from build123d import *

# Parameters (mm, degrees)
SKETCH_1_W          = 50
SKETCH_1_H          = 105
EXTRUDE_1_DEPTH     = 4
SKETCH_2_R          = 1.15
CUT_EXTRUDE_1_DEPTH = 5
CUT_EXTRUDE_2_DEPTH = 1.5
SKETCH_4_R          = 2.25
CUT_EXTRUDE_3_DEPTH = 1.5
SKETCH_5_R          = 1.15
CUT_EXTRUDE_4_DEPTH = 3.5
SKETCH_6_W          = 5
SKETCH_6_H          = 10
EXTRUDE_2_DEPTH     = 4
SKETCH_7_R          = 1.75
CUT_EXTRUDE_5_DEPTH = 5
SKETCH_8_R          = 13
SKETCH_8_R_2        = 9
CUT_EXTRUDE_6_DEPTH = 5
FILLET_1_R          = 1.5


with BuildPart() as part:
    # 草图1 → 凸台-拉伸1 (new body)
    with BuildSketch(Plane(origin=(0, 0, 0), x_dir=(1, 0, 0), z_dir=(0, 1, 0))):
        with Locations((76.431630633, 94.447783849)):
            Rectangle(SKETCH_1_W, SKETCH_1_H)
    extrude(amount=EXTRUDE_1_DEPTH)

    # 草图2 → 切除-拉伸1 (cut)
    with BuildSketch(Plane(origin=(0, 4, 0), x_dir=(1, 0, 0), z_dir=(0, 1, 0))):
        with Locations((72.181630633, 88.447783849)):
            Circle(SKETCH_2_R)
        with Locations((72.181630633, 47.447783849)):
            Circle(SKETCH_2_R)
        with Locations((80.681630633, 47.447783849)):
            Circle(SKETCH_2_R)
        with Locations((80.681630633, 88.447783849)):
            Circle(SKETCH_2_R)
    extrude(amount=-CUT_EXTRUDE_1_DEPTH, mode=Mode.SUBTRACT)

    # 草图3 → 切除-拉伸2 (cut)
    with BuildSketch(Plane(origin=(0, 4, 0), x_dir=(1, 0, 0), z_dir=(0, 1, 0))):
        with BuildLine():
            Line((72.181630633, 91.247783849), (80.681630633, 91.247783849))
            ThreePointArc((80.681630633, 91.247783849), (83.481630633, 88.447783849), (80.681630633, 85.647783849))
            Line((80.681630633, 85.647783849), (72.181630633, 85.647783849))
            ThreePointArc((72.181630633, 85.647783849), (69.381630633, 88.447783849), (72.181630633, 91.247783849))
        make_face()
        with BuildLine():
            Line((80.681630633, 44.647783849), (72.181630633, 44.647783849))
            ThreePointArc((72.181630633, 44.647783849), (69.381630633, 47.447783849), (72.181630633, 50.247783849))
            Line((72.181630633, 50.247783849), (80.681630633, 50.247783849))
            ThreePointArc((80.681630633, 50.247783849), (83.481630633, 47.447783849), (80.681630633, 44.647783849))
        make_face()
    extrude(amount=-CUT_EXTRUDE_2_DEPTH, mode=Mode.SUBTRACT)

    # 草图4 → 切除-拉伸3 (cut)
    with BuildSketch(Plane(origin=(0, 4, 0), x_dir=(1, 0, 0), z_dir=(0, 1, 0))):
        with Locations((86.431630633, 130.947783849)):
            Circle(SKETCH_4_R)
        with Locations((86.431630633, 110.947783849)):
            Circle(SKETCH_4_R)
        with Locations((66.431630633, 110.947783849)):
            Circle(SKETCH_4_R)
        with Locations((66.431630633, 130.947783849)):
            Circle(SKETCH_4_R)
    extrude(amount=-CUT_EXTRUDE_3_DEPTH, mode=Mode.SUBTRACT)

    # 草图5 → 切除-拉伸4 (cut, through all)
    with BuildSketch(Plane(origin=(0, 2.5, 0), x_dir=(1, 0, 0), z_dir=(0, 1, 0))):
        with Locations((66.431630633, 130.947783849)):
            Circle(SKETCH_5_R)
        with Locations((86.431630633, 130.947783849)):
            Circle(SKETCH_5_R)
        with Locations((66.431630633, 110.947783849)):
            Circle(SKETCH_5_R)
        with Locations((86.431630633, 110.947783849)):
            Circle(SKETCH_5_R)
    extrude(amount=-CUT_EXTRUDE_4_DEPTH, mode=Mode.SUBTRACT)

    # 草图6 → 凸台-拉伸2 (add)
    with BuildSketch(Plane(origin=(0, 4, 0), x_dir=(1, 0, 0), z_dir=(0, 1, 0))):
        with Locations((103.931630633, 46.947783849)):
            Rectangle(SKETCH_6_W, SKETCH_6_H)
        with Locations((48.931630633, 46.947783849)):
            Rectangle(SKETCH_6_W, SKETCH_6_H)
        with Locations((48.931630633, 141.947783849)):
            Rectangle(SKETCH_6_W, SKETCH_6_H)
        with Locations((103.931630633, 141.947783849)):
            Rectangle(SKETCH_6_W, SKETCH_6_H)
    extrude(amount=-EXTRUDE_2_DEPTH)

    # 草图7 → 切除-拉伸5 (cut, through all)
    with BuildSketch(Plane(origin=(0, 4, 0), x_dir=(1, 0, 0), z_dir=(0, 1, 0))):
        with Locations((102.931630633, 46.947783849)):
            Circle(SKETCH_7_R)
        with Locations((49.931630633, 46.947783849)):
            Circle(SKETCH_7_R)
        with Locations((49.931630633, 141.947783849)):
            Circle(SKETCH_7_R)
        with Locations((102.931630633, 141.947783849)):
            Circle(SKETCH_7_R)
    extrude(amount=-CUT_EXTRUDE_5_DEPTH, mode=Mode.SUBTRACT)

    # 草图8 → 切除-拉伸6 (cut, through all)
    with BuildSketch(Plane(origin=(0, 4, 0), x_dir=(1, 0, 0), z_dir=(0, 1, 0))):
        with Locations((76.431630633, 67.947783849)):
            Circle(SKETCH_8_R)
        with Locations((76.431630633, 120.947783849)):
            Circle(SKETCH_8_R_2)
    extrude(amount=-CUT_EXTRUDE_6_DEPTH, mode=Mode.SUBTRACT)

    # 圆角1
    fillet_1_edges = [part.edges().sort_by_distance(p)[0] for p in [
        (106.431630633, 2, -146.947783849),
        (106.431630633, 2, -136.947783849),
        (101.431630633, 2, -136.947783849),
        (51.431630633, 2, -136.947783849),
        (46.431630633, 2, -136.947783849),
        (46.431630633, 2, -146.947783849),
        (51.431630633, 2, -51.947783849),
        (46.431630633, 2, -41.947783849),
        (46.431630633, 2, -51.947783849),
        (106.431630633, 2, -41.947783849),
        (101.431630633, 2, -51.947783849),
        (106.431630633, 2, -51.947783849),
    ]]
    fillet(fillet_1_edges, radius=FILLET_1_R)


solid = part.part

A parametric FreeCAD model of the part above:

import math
import FreeCAD as App
import Part
import Sketcher
from FreeCAD import Vector
Q = App.Units.Quantity


def edges_at(feature, points):
    """Names of the edges that pass closest to the given points."""
    edges = feature.Shape.Edges
    near = lambda p: min(range(len(edges)), key=lambda i: edges[i].distToShape(Part.Vertex(*p))[0])
    return sorted({f"Edge{near(p) + 1}" for p in points})

doc = App.newDocument("Part")
body = doc.addObject("PartDesign::Body", "Body")

sketch1 = body.newObject("Sketcher::SketchObject", "Sketch")
sketch1.AttachmentSupport = (doc.getObject("XZ_Plane"), [""])
sketch1.MapMode = "FlatFace"
sketch1.addGeometry([
    Part.LineSegment(Vector(51, -147, 0), Vector(51, -42, 0)),
    Part.LineSegment(Vector(51, -42, 0), Vector(101, -42, 0)),
    Part.LineSegment(Vector(101, -42, 0), Vector(101, -147, 0)),
    Part.LineSegment(Vector(101, -147, 0), Vector(51, -147, 0)),
], False)
sketch1.addConstraint([
    Sketcher.Constraint("Coincident", 0, 2, 1, 1),
    Sketcher.Constraint("Coincident", 1, 2, 2, 1),
    Sketcher.Constraint("Coincident", 2, 2, 3, 1),
    Sketcher.Constraint("Coincident", 3, 2, 0, 1),
    Sketcher.Constraint("Vertical", 0),
    Sketcher.Constraint("Horizontal", 1),
    Sketcher.Constraint("Vertical", 2),
    Sketcher.Constraint("Horizontal", 3),
    Sketcher.Constraint("DistanceX", 1, 1, 1, 2, Q("50 mm")),
    Sketcher.Constraint("DistanceY", 0, 1, 0, 2, Q("105 mm")),
    Sketcher.Constraint("DistanceX", -1, 1, 0, 2, Q("51.431631 mm")),
    Sketcher.Constraint("DistanceY", 0, 2, -1, 1, Q("41.947784 mm")),
])
pad1 = body.newObject("PartDesign::Pad", "Pad")
pad1.Profile = sketch1
pad1.Length = 4
pad1.Reversed = True

sketch2 = body.newObject("Sketcher::SketchObject", "Sketch001")
sketch2.AttachmentSupport = (doc.getObject("XZ_Plane"), [""])
sketch2.MapMode = "FlatFace"
sketch2.AttachmentOffset = App.Placement(Vector(0, 0, -4), App.Rotation())
sketch2.addGeometry([
    Part.Circle(Vector(72.2, -88.4, 0), Vector(0, 0, 1), 1.1),
    Part.Circle(Vector(72.2, -47.4, 0), Vector(0, 0, 1), 1.1),
    Part.Circle(Vector(80.7, -47.4, 0), Vector(0, 0, 1), 1.1),
    Part.Circle(Vector(80.7, -88.4, 0), Vector(0, 0, 1), 1.1),
], False)
sketch2.addConstraint([
    Sketcher.Constraint("Equal", 0, 1),
    Sketcher.Constraint("Equal", 1, 2),
    Sketcher.Constraint("Equal", 2, 3),
    Sketcher.Constraint("Horizontal", 1, 3, 2, 3),
    Sketcher.Constraint("Horizontal", 0, 3, 3, 3),
    Sketcher.Constraint("Vertical", 0, 3, 1, 3),
    Sketcher.Constraint("Vertical", 2, 3, 3, 3),
    Sketcher.Constraint("Diameter", 0, Q("2.3 mm")),
    Sketcher.Constraint("DistanceY", 0, 3, 1, 3, Q("41 mm")),
    Sketcher.Constraint("DistanceX", 1, 3, 2, 3, Q("8.5 mm")),
    Sketcher.Constraint("DistanceX", -1, 1, 0, 3, Q("72.181631 mm")),
    Sketcher.Constraint("DistanceY", 0, 3, -1, 1, Q("88.447784 mm")),
])
pocket1 = body.newObject("PartDesign::Pocket", "Pocket")
pocket1.Profile = sketch2
pocket1.Length = 5
pocket1.Reversed = True

sketch3 = body.newObject("Sketcher::SketchObject", "Sketch002")
sketch3.AttachmentSupport = (doc.getObject("XZ_Plane"), [""])
sketch3.MapMode = "FlatFace"
sketch3.AttachmentOffset = App.Placement(Vector(0, 0, -4), App.Rotation())
sketch3.addGeometry([
    Part.LineSegment(Vector(80.7, -91.2, 0), Vector(72.2, -91.2, 0)),
    Part.ArcOfCircle(Part.Circle(Vector(72.2, -88.4, 0), Vector(0, 0, 1), 2.8), math.radians(90), math.radians(270)),
    Part.LineSegment(Vector(72.2, -85.6, 0), Vector(80.7, -85.6, 0)),
    Part.ArcOfCircle(Part.Circle(Vector(80.7, -88.4, 0), Vector(0, 0, 1), 2.8), math.radians(-90), math.radians(90)),
    Part.LineSegment(Vector(72.2, -44.6, 0), Vector(80.7, -44.6, 0)),
    Part.ArcOfCircle(Part.Circle(Vector(80.7, -47.4, 0), Vector(0, 0, 1), 2.8), math.radians(-90), math.radians(90)),
    Part.LineSegment(Vector(80.7, -50.2, 0), Vector(72.2, -50.2, 0)),
    Part.ArcOfCircle(Part.Circle(Vector(72.2, -47.4, 0), Vector(0, 0, 1), 2.8), math.radians(90), math.radians(270)),
], False)
sketch3.addConstraint([
    Sketcher.Constraint("Tangent", 0, 2, 1, 2),
    Sketcher.Constraint("Tangent", 1, 1, 2, 1),
    Sketcher.Constraint("Tangent", 2, 2, 3, 2),
    Sketcher.Constraint("Tangent", 3, 1, 0, 1),
    Sketcher.Constraint("Tangent", 4, 2, 5, 2),
    Sketcher.Constraint("Tangent", 5, 1, 6, 1),
    Sketcher.Constraint("Tangent", 6, 2, 7, 2),
    Sketcher.Constraint("Tangent", 7, 1, 4, 1),
    Sketcher.Constraint("Horizontal", 0),
    Sketcher.Constraint("Horizontal", 2),
    Sketcher.Constraint("Horizontal", 4),
    Sketcher.Constraint("Horizontal", 6),
    Sketcher.Constraint("Equal", 3, 5),
    Sketcher.Constraint("Vertical", 3, 3, 5, 3),
    Sketcher.Constraint("Vertical", 1, 3, 7, 3),
    Sketcher.Constraint("Radius", 1, Q("2.8 mm")),
    Sketcher.Constraint("DistanceX", 0, 2, 0, 1, Q("8.5 mm")),
    Sketcher.Constraint("DistanceY", 3, 3, 5, 3, Q("41 mm")),
    Sketcher.Constraint("DistanceX", -1, 1, 1, 3, Q("72.181631 mm")),
    Sketcher.Constraint("DistanceY", 1, 3, -1, 1, Q("88.447784 mm")),
])
pocket2 = body.newObject("PartDesign::Pocket", "Pocket001")
pocket2.Profile = sketch3
pocket2.Length = 1.5
pocket2.Reversed = True

sketch4 = body.newObject("Sketcher::SketchObject", "Sketch003")
sketch4.AttachmentSupport = (doc.getObject("XZ_Plane"), [""])
sketch4.MapMode = "FlatFace"
sketch4.AttachmentOffset = App.Placement(Vector(0, 0, -4), App.Rotation())
sketch4.addGeometry([
    Part.Circle(Vector(86.4, -130.9, 0), Vector(0, 0, 1), 2.2),
    Part.Circle(Vector(86.4, -110.9, 0), Vector(0, 0, 1), 2.2),
    Part.Circle(Vector(66.4, -110.9, 0), Vector(0, 0, 1), 2.2),
    Part.Circle(Vector(66.4, -130.9, 0), Vector(0, 0, 1), 2.2),
], False)
sketch4.addConstraint([
    Sketcher.Constraint("Equal", 0, 1),
    Sketcher.Constraint("Equal", 1, 2),
    Sketcher.Constraint("Equal", 2, 3),
    Sketcher.Constraint("Horizontal", 1, 3, 2, 3),
    Sketcher.Constraint("Horizontal", 0, 3, 3, 3),
    Sketcher.Constraint("Vertical", 0, 3, 1, 3),
    Sketcher.Constraint("Vertical", 2, 3, 3, 3),
    Sketcher.Constraint("Diameter", 0, Q("4.5 mm")),
    Sketcher.Constraint("DistanceY", 0, 3, 1, 3, Q("20 mm")),
    Sketcher.Constraint("DistanceX", 2, 3, 1, 3, Q("20 mm")),
    Sketcher.Constraint("DistanceX", -1, 1, 0, 3, Q("86.431631 mm")),
    Sketcher.Constraint("DistanceY", 0, 3, -1, 1, Q("130.947784 mm")),
])
pocket3 = body.newObject("PartDesign::Pocket", "Pocket002")
pocket3.Profile = sketch4
pocket3.Length = 1.5
pocket3.Reversed = True

sketch5 = body.newObject("Sketcher::SketchObject", "Sketch004")
sketch5.AttachmentSupport = (doc.getObject("XZ_Plane"), [""])
sketch5.MapMode = "FlatFace"
sketch5.AttachmentOffset = App.Placement(Vector(0, 0, -2.5), App.Rotation())
sketch5.addGeometry([
    Part.Circle(Vector(66.4, -130.9, 0), Vector(0, 0, 1), 1.1),
    Part.Circle(Vector(86.4, -130.9, 0), Vector(0, 0, 1), 1.1),
    Part.Circle(Vector(66.4, -110.9, 0), Vector(0, 0, 1), 1.1),
    Part.Circle(Vector(86.4, -110.9, 0), Vector(0, 0, 1), 1.1),
], False)
sketch5.addConstraint([
    Sketcher.Constraint("Equal", 0, 1),
    Sketcher.Constraint("Equal", 1, 2),
    Sketcher.Constraint("Equal", 2, 3),
    Sketcher.Constraint("Horizontal", 0, 3, 1, 3),
    Sketcher.Constraint("Horizontal", 2, 3, 3, 3),
    Sketcher.Constraint("Vertical", 0, 3, 2, 3),
    Sketcher.Constraint("Vertical", 1, 3, 3, 3),
    Sketcher.Constraint("Diameter", 0, Q("2.3 mm")),
    Sketcher.Constraint("DistanceX", 0, 3, 1, 3, Q("20 mm")),
    Sketcher.Constraint("DistanceY", 0, 3, 2, 3, Q("20 mm")),
    Sketcher.Constraint("DistanceX", -1, 1, 0, 3, Q("66.431631 mm")),
    Sketcher.Constraint("DistanceY", 0, 3, -1, 1, Q("130.947784 mm")),
])
pocket4 = body.newObject("PartDesign::Pocket", "Pocket003")
pocket4.Profile = sketch5
pocket4.Type = "ThroughAll"
pocket4.Reversed = True

sketch6 = body.newObject("Sketcher::SketchObject", "Sketch005")
sketch6.AttachmentSupport = (doc.getObject("XZ_Plane"), [""])
sketch6.MapMode = "FlatFace"
sketch6.AttachmentOffset = App.Placement(Vector(0, 0, -4), App.Rotation())
sketch6.addGeometry([
    Part.LineSegment(Vector(101, -52, 0), Vector(101, -42, 0)),
    Part.LineSegment(Vector(101, -42, 0), Vector(106, -42, 0)),
    Part.LineSegment(Vector(106, -42, 0), Vector(106, -52, 0)),
    Part.LineSegment(Vector(106, -52, 0), Vector(101, -52, 0)),
    Part.LineSegment(Vector(46, -52, 0), Vector(46, -42, 0)),
    Part.LineSegment(Vector(46, -42, 0), Vector(51, -42, 0)),
    Part.LineSegment(Vector(51, -42, 0), Vector(51, -52, 0)),
    Part.LineSegment(Vector(51, -52, 0), Vector(46, -52, 0)),
    Part.LineSegment(Vector(46, -147, 0), Vector(46, -137, 0)),
    Part.LineSegment(Vector(46, -137, 0), Vector(51, -137, 0)),
    Part.LineSegment(Vector(51, -137, 0), Vector(51, -147, 0)),
    Part.LineSegment(Vector(51, -147, 0), Vector(46, -147, 0)),
    Part.LineSegment(Vector(101, -147, 0), Vector(101, -137, 0)),
    Part.LineSegment(Vector(101, -137, 0), Vector(106, -137, 0)),
    Part.LineSegment(Vector(106, -137, 0), Vector(106, -147, 0)),
    Part.LineSegment(Vector(106, -147, 0), Vector(101, -147, 0)),
], False)
sketch6.addConstraint([
    Sketcher.Constraint("Coincident", 0, 2, 1, 1),
    Sketcher.Constraint("Coincident", 1, 2, 2, 1),
    Sketcher.Constraint("Coincident", 2, 2, 3, 1),
    Sketcher.Constraint("Coincident", 3, 2, 0, 1),
    Sketcher.Constraint("Coincident", 4, 2, 5, 1),
    Sketcher.Constraint("Coincident", 5, 2, 6, 1),
    Sketcher.Constraint("Coincident", 6, 2, 7, 1),
    Sketcher.Constraint("Coincident", 7, 2, 4, 1),
    Sketcher.Constraint("Coincident", 8, 2, 9, 1),
    Sketcher.Constraint("Coincident", 9, 2, 10, 1),
    Sketcher.Constraint("Coincident", 10, 2, 11, 1),
    Sketcher.Constraint("Coincident", 11, 2, 8, 1),
    Sketcher.Constraint("Coincident", 12, 2, 13, 1),
    Sketcher.Constraint("Coincident", 13, 2, 14, 1),
    Sketcher.Constraint("Coincident", 14, 2, 15, 1),
    Sketcher.Constraint("Coincident", 15, 2, 12, 1),
    Sketcher.Constraint("Vertical", 0),
    Sketcher.Constraint("Horizontal", 1),
    Sketcher.Constraint("Vertical", 2),
    Sketcher.Constraint("Horizontal", 3),
    Sketcher.Constraint("Vertical", 4),
    Sketcher.Constraint("Horizontal", 5),
    Sketcher.Constraint("Vertical", 6),
    Sketcher.Constraint("Horizontal", 7),
    Sketcher.Constraint("Vertical", 8),
    Sketcher.Constraint("Horizontal", 9),
    Sketcher.Constraint("Vertical", 10),
    Sketcher.Constraint("Horizontal", 11),
    Sketcher.Constraint("Vertical", 12),
    Sketcher.Constraint("Horizontal", 13),
    Sketcher.Constraint("Vertical", 14),
    Sketcher.Constraint("Horizontal", 15),
    Sketcher.Constraint("Horizontal", 1, 2, 4, 2),
    Sketcher.Constraint("Horizontal", 3, 2, 6, 2),
    Sketcher.Constraint("Horizontal", 9, 2, 12, 2),
    Sketcher.Constraint("Horizontal", 11, 2, 14, 2),
    Sketcher.Constraint("Vertical", 7, 2, 8, 2),
    Sketcher.Constraint("Vertical", 6, 2, 9, 2),
    Sketcher.Constraint("Vertical", 3, 2, 12, 2),
    Sketcher.Constraint("Vertical", 2, 2, 13, 2),
    Sketcher.Constraint("Equal", 3, 5),
    Sketcher.Constraint("Equal", 6, 8),
    Sketcher.Constraint("DistanceX", 1, 1, 1, 2, Q("5 mm")),
    Sketcher.Constraint("DistanceY", 0, 1, 0, 2, Q("10 mm")),
    Sketcher.Constraint("DistanceX", 4, 2, 0, 2, Q("55 mm")),
    Sketcher.Constraint("DistanceY", 8, 2, 7, 2, Q("85 mm")),
    Sketcher.Constraint("DistanceX", -1, 1, 0, 2, Q("101.431631 mm")),
    Sketcher.Constraint("DistanceY", 0, 2, -1, 1, Q("41.947784 mm")),
])
pad2 = body.newObject("PartDesign::Pad", "Pad001")
pad2.Profile = sketch6
pad2.Length = 4

sketch7 = body.newObject("Sketcher::SketchObject", "Sketch006")
sketch7.AttachmentSupport = (doc.getObject("XZ_Plane"), [""])
sketch7.MapMode = "FlatFace"
sketch7.AttachmentOffset = App.Placement(Vector(0, 0, -4), App.Rotation())
sketch7.addGeometry([
    Part.Circle(Vector(102.9, -46.9, 0), Vector(0, 0, 1), 1.8),
    Part.Circle(Vector(49.9, -46.9, 0), Vector(0, 0, 1), 1.8),
    Part.Circle(Vector(49.9, -141.9, 0), Vector(0, 0, 1), 1.8),
    Part.Circle(Vector(102.9, -141.9, 0), Vector(0, 0, 1), 1.8),
], False)
sketch7.addConstraint([
    Sketcher.Constraint("Equal", 0, 1),
    Sketcher.Constraint("Equal", 1, 2),
    Sketcher.Constraint("Equal", 2, 3),
    Sketcher.Constraint("Horizontal", 0, 3, 1, 3),
    Sketcher.Constraint("Horizontal", 2, 3, 3, 3),
    Sketcher.Constraint("Vertical", 1, 3, 2, 3),
    Sketcher.Constraint("Vertical", 0, 3, 3, 3),
    Sketcher.Constraint("Diameter", 0, Q("3.5 mm")),
    Sketcher.Constraint("DistanceX", 1, 3, 0, 3, Q("53 mm")),
    Sketcher.Constraint("DistanceY", 2, 3, 1, 3, Q("95 mm")),
    Sketcher.Constraint("DistanceX", -1, 1, 0, 3, Q("102.931631 mm")),
    Sketcher.Constraint("DistanceY", 0, 3, -1, 1, Q("46.947784 mm")),
])
pocket5 = body.newObject("PartDesign::Pocket", "Pocket004")
pocket5.Profile = sketch7
pocket5.Type = "ThroughAll"
pocket5.Reversed = True

sketch8 = body.newObject("Sketcher::SketchObject", "Sketch007")
sketch8.AttachmentSupport = (doc.getObject("XZ_Plane"), [""])
sketch8.MapMode = "FlatFace"
sketch8.AttachmentOffset = App.Placement(Vector(0, 0, -4), App.Rotation())
sketch8.addGeometry([
    Part.Circle(Vector(76, -68, 0), Vector(0, 0, 1), 13),
    Part.Circle(Vector(76, -121, 0), Vector(0, 0, 1), 9),
], False)
sketch8.addConstraint([
    Sketcher.Constraint("Vertical", 0, 3, 1, 3),
    Sketcher.Constraint("Diameter", 0, Q("26 mm")),
    Sketcher.Constraint("Diameter", 1, Q("18 mm")),
    Sketcher.Constraint("DistanceY", 1, 3, 0, 3, Q("53 mm")),
    Sketcher.Constraint("DistanceX", -1, 1, 0, 3, Q("76.431631 mm")),
    Sketcher.Constraint("DistanceY", 0, 3, -1, 1, Q("67.947784 mm")),
])
pocket6 = body.newObject("PartDesign::Pocket", "Pocket005")
pocket6.Profile = sketch8
pocket6.Type = "ThroughAll"
pocket6.Reversed = True
doc.recompute()

fillet = body.newObject("PartDesign::Fillet", "Fillet")
fillet.Base = (pocket6, edges_at(pocket6, [
    (106.432, 2, -146.948),
    (106.432, 2, -136.948),
    (101.432, 2, -136.948),
    (51.432, 2, -136.948),
    (46.432, 2, -136.948),
    (46.432, 2, -146.948),
    (51.432, 2, -51.948),
    (46.432, 2, -41.948),
    (46.432, 2, -51.948),
    (106.432, 2, -41.948),
    (101.432, 2, -51.948),
    (106.432, 2, -51.948),
]))
fillet.Radius = 1.5

doc.recompute()
